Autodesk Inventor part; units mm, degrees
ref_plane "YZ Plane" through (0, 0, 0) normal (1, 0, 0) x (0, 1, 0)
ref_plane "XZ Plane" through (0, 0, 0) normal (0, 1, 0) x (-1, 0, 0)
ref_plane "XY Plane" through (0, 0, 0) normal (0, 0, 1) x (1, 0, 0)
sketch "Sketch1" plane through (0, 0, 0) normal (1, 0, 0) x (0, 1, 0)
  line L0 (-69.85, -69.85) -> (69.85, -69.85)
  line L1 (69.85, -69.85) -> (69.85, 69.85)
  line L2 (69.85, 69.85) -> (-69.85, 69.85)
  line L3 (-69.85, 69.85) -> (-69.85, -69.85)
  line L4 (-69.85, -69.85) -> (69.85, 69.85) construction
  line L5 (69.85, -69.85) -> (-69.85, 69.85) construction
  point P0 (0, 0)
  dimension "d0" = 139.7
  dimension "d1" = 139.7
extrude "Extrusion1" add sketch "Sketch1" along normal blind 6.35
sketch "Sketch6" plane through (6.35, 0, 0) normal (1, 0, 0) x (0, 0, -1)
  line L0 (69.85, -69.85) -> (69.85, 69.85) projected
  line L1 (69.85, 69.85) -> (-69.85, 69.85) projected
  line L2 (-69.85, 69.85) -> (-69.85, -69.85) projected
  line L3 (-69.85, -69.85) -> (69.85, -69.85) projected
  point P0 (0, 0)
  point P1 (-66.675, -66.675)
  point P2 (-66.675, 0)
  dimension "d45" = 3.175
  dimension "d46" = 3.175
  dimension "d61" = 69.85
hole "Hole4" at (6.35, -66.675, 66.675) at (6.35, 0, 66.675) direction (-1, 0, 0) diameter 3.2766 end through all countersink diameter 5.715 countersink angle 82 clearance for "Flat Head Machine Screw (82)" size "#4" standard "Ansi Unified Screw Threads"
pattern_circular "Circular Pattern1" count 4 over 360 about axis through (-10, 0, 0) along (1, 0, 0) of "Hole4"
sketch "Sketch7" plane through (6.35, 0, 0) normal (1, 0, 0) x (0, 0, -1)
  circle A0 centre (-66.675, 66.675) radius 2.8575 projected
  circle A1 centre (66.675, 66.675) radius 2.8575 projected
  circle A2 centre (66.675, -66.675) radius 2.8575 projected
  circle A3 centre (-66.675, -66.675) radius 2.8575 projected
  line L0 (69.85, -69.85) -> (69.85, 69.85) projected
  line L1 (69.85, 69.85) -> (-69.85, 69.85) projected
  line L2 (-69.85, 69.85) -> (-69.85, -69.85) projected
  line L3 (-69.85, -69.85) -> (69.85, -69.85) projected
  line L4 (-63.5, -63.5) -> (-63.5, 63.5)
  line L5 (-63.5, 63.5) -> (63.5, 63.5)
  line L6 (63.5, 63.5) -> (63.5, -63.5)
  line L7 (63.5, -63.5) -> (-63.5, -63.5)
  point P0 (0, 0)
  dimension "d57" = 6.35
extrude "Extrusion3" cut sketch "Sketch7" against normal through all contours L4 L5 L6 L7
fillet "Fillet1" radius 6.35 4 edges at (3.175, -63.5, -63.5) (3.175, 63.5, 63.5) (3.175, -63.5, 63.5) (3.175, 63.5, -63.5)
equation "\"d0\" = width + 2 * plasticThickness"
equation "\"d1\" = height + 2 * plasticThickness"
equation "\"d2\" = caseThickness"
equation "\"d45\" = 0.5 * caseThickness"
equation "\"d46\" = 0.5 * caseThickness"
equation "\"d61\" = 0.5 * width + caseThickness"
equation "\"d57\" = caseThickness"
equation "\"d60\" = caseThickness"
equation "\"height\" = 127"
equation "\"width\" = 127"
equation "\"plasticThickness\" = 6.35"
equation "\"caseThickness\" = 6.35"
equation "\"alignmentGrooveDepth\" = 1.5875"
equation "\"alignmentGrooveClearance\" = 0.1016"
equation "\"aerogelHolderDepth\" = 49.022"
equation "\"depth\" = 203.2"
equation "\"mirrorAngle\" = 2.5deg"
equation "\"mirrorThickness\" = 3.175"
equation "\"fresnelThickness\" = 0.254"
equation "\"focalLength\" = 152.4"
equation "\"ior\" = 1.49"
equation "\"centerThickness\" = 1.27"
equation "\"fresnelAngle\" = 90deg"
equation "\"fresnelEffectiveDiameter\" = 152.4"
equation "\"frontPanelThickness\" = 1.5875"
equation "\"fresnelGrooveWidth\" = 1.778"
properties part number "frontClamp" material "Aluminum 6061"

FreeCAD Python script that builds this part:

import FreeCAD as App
import Part
import Sketcher

V = App.Vector
Q = App.Units.Quantity


def edges_at(feature, points):
    """Names of the edges that pass closest to the given points."""
    edges = feature.Shape.Edges
    near = lambda p: min(range(len(edges)), key=lambda i: edges[i].distToShape(Part.Vertex(*p))[0])
    return sorted({f"Edge{near(p) + 1}" for p in points})


def add_polygon(sketch, points):
    """Adds a closed chain of lines whose ends are joined by coincident constraints."""
    first, n = sketch.GeometryCount, len(points)
    for a, b in zip(points, points[1:] + points[:1]):
        sketch.addGeometry(Part.LineSegment(App.Vector(*a, 0), App.Vector(*b, 0)), False)
    for i in range(n):
        sketch.addConstraint(Sketcher.Constraint("Coincident", first + i, 2, first + (i + 1) % n, 1))

doc = App.newDocument("Part")
body = doc.addObject("PartDesign::Body", "Body")

# Sketch on YZ plane
sketch1 = body.newObject("Sketcher::SketchObject", "Sketch")
sketch1.AttachmentSupport = (doc.getObject("YZ_Plane"), [""])
sketch1.MapMode = "FlatFace"
add_polygon(sketch1, [(-70, 70), (-70, -70), (70, -70), (70, 70)])  # lines 0-3
sketch1.addConstraint([
    Sketcher.Constraint("Vertical", 0),
    Sketcher.Constraint("Horizontal", 1),
    Sketcher.Constraint("Vertical", 2),
    Sketcher.Constraint("Horizontal", 3),
    Sketcher.Constraint("Symmetric", 0, 2, 2, 2, -1, 1),
    Sketcher.Constraint("Equal", 3, 0),
    Sketcher.Constraint("DistanceX", 1, 1, 1, 2, Q("5.5 in")),
])
pad1 = body.newObject("PartDesign::Pad", "Pad")
pad1.Profile = sketch1
pad1.Length = Q("0.25 in")

# Sketch on YZ plane
sketch2 = body.newObject("Sketcher::SketchObject", "Sketch001")
sketch2.AttachmentSupport = (doc.getObject("YZ_Plane"), [""])
sketch2.MapMode = "FlatFace"
sketch2.AttachmentOffset = App.Placement(V(0, 0, 0.25 * 25.4), App.Rotation())
sketch2.addGeometry([
    Part.Circle(V(-66.7, 66.7, 0), V(0, 0, 1), 1.6),
    Part.Circle(V(0, 66.7, 0), V(0, 0, 1), 1.6),
], False)
sketch2.addConstraint([
    Sketcher.Constraint("Equal", 0, 1),
    Sketcher.Constraint("PointOnObject", 1, 3, -2),
    Sketcher.Constraint("Horizontal", 0, 3, 1, 3),
    Sketcher.Constraint("Diameter", 0, Q("0.129 in")),
    Sketcher.Constraint("DistanceX", 0, 3, -1, 1, Q("2.625 in")),
    Sketcher.Constraint("DistanceY", -1, 1, 0, 3, Q("2.625 in")),
])
doc.recompute()
hole = body.newObject("PartDesign::Hole", "Hole")
hole.Profile = sketch2
hole.ThreadType = "None"
hole.Diameter = Q("0.129 in")
hole.DepthType = "ThroughAll"
hole.HoleCutType = "Countersink"
hole.HoleCutDiameter = Q("0.225 in")
hole.HoleCutCountersinkAngle = 82
doc.recompute()

polarpattern = body.newObject("PartDesign::PolarPattern", "PolarPattern")
polarpattern.Originals = [hole]
polarpattern.Axis = (doc.getObject("X_Axis"), [""])
polarpattern.Angle = 360
polarpattern.Occurrences = 4
body.Tip = polarpattern

# Sketch on YZ plane
sketch3 = body.newObject("Sketcher::SketchObject", "Sketch002")
sketch3.AttachmentSupport = (doc.getObject("YZ_Plane"), [""])
sketch3.MapMode = "FlatFace"
sketch3.AttachmentOffset = App.Placement(V(0, 0, 0.25 * 25.4), App.Rotation())
add_polygon(sketch3, [(64, 64), (-64, 64), (-64, -64), (64, -64)])  # lines 0-3
sketch3.addConstraint([
    Sketcher.Constraint("Horizontal", 0),
    Sketcher.Constraint("Vertical", 1),
    Sketcher.Constraint("Horizontal", 2),
    Sketcher.Constraint("Vertical", 3),
    Sketcher.Constraint("Symmetric", 0, 2, 2, 2, -1, 1),
    Sketcher.Constraint("Equal", 2, 1),
    Sketcher.Constraint("DistanceX", 0, 2, 0, 1, Q("5 in")),
])
pocket1 = body.newObject("PartDesign::Pocket", "Pocket")
pocket1.Profile = sketch3
pocket1.Type = "ThroughAll"
doc.recompute()

fillet = body.newObject("PartDesign::Fillet", "Fillet")
fillet.Base = (pocket1, edges_at(pocket1, [
    (3.175, -63.5, -63.5),
    (3.175, 63.5, 63.5),
    (3.175, -63.5, 63.5),
    (3.175, 63.5, -63.5),
]))
fillet.Radius = Q("0.25 in")

doc.recompute()
